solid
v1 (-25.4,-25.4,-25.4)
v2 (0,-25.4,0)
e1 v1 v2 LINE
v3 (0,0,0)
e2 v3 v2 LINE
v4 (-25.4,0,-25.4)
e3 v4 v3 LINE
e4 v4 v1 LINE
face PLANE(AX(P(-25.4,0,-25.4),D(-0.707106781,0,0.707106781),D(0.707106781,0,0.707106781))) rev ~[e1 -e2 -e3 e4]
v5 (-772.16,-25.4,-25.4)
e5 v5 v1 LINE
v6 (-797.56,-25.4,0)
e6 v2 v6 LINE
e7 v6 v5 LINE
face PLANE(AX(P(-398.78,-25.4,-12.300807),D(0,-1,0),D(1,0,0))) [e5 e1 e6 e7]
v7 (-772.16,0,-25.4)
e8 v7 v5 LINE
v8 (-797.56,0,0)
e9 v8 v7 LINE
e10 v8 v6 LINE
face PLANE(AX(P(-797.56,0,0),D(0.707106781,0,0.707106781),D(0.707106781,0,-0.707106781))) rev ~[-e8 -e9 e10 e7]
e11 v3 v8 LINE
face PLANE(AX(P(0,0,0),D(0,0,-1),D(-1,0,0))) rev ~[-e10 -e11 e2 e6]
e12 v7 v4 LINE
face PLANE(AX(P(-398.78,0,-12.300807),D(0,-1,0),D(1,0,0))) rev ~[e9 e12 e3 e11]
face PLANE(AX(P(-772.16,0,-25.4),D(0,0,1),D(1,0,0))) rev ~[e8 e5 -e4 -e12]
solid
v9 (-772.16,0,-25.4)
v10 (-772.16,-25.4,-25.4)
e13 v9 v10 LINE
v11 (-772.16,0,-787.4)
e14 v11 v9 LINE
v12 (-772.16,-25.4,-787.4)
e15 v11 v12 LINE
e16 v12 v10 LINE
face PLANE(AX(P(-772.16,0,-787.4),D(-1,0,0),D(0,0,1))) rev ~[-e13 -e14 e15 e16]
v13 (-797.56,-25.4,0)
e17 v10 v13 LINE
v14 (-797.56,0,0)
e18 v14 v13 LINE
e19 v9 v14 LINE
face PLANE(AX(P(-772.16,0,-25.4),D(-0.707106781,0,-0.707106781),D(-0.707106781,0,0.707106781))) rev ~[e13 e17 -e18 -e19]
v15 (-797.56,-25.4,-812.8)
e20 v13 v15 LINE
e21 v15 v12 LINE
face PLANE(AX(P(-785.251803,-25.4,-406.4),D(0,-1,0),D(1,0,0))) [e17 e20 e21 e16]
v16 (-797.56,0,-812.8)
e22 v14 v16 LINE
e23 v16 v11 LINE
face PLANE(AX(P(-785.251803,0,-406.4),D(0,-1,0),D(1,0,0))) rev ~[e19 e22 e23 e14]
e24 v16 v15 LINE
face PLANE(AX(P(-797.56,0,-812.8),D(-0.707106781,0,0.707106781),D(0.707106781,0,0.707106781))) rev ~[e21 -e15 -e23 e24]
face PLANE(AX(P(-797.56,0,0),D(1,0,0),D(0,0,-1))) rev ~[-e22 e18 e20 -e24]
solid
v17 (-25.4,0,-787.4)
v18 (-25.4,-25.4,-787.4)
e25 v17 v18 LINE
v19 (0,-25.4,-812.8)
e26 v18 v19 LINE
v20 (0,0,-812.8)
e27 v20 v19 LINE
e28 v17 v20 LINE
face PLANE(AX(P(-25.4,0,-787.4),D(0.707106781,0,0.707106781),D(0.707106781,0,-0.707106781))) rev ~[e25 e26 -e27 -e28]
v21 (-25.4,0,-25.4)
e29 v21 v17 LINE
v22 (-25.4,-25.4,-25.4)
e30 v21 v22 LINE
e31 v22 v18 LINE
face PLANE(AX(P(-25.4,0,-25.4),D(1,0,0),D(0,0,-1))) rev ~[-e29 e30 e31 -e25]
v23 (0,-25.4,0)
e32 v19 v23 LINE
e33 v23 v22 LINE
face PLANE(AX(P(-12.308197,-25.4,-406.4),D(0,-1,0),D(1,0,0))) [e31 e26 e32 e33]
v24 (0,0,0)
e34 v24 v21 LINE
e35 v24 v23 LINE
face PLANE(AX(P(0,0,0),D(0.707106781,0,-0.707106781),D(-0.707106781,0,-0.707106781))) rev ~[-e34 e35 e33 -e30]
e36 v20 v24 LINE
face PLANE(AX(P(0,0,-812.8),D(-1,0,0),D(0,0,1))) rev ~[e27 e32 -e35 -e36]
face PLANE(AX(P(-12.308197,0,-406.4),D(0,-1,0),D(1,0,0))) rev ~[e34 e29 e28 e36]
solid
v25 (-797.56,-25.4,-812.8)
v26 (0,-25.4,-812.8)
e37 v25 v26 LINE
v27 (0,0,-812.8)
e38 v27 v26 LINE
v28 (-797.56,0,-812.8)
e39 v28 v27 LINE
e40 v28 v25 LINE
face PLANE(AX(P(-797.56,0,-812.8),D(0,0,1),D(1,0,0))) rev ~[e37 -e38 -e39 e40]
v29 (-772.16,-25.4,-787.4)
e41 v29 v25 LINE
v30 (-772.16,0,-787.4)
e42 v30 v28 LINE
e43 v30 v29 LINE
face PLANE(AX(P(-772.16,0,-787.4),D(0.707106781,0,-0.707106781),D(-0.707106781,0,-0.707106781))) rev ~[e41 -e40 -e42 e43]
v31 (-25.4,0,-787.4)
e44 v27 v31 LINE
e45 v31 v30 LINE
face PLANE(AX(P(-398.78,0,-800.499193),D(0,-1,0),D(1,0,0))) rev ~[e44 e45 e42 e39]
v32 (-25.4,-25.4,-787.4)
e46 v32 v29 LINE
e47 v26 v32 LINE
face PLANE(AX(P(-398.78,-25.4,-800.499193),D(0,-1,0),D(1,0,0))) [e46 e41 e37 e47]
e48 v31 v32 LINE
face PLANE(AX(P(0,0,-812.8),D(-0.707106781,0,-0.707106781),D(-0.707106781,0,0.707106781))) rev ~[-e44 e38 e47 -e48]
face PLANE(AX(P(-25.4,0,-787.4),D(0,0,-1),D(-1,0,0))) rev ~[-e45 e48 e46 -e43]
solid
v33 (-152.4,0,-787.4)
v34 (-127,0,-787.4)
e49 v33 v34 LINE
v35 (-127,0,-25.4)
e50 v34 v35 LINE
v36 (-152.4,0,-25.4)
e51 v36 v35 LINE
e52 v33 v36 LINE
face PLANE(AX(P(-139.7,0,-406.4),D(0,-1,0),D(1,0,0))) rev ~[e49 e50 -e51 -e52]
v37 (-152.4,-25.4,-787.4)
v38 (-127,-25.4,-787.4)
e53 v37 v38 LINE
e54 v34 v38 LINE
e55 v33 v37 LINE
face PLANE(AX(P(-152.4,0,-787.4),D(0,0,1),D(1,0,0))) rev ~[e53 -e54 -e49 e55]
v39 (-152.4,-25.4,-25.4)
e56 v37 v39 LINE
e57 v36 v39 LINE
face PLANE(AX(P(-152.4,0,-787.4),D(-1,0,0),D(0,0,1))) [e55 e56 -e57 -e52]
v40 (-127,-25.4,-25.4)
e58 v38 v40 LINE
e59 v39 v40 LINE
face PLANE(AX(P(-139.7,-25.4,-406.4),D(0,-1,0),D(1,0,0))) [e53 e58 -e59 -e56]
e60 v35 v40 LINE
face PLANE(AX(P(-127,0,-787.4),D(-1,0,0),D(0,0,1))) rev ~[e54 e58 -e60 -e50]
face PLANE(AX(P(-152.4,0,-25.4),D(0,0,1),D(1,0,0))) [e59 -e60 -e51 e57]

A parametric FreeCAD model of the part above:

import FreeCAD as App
import Part
import Sketcher
from FreeCAD import Vector
Q = App.Units.Quantity

doc = App.newDocument("Part")
body = doc.addObject("PartDesign::Body", "Body")

sketch1 = body.newObject("Sketcher::SketchObject", "Sketch")
sketch1.AttachmentSupport = (doc.getObject("XZ_Plane"), [""])
sketch1.MapMode = "FlatFace"
sketch1.addGeometry(Part.LineSegment(Vector(0, -812.8, 0), Vector(0, 0, 0)), False)
sketch1.addGeometry(Part.LineSegment(Vector(0, 0, 0), Vector(-25.4, -25.4, 0)), False)
sketch1.addGeometry(Part.LineSegment(Vector(-25.4, -25.4, 0), Vector(-25.4, -787.4, 0)), False)
sketch1.addGeometry(Part.LineSegment(Vector(-25.4, -787.4, 0), Vector(0, -812.8, 0)), False)
sketch1.addConstraint(Sketcher.Constraint("Coincident", 0, 2, 1, 1))
sketch1.addConstraint(Sketcher.Constraint("Coincident", 1, 2, 2, 1))
sketch1.addConstraint(Sketcher.Constraint("Coincident", 2, 2, 3, 1))
sketch1.addConstraint(Sketcher.Constraint("Coincident", 3, 2, 0, 1))
sketch1.addConstraint(Sketcher.Constraint("Vertical", 0))
sketch1.addConstraint(Sketcher.Constraint("Vertical", 2))
sketch1.addConstraint(Sketcher.Constraint("Coincident", 0, 2, -1, 1))
sketch1.addConstraint(Sketcher.Constraint("Perpendicular", 1, 3))
sketch1.addConstraint(Sketcher.Constraint("Equal", 1, 3))
sketch1.addConstraint(Sketcher.Constraint("DistanceY", 0, 1, 0, 2, Q("32 in")))
sketch1.addConstraint(Sketcher.Constraint("DistanceY", 2, 2, 2, 1, Q("30 in")))
pad1 = body.newObject("PartDesign::Pad", "Pad")
pad1.Profile = sketch1
pad1.Length = Q("1 in")
body2 = doc.addObject("PartDesign::Body", "Body001")

sketch2 = body2.newObject("Sketcher::SketchObject", "Sketch001")
sketch2.AttachmentSupport = (doc.getObject("XZ_Plane001"), [""])
sketch2.MapMode = "FlatFace"
sketch2.addGeometry(Part.LineSegment(Vector(-797.56, -812.8, 0), Vector(0, -812.8, 0)), False)
sketch2.addGeometry(Part.LineSegment(Vector(0, -812.8, 0), Vector(-25.4, -787.4, 0)), False)
sketch2.addGeometry(Part.LineSegment(Vector(-25.4, -787.4, 0), Vector(-772.16, -787.4, 0)), False)
sketch2.addGeometry(Part.LineSegment(Vector(-772.16, -787.4, 0), Vector(-797.56, -812.8, 0)), False)
sketch2.addConstraint(Sketcher.Constraint("Coincident", 0, 2, 1, 1))
sketch2.addConstraint(Sketcher.Constraint("Coincident", 1, 2, 2, 1))
sketch2.addConstraint(Sketcher.Constraint("Coincident", 2, 2, 3, 1))
sketch2.addConstraint(Sketcher.Constraint("Coincident", 3, 2, 0, 1))
sketch2.addConstraint(Sketcher.Constraint("Horizontal", 0))
sketch2.addConstraint(Sketcher.Constraint("Horizontal", 2))
sketch2.addConstraint(Sketcher.Constraint("PointOnObject", 0, 2, -2))
sketch2.addConstraint(Sketcher.Constraint("Perpendicular", 1, 3))
sketch2.addConstraint(Sketcher.Constraint("Equal", 1, 3))
sketch2.addConstraint(Sketcher.Constraint("DistanceX", 0, 1, 0, 2, Q("31.4 in")))
sketch2.addConstraint(Sketcher.Constraint("DistanceX", 2, 2, 2, 1, Q("29.4 in")))
sketch2.addConstraint(Sketcher.Constraint("DistanceY", 0, 2, -1, 1, Q("32 in")))
pad2 = body2.newObject("PartDesign::Pad", "Pad001")
pad2.Profile = sketch2
pad2.Length = Q("1 in")
body3 = doc.addObject("PartDesign::Body", "Body002")

sketch3 = body3.newObject("Sketcher::SketchObject", "Sketch002")
sketch3.AttachmentSupport = (doc.getObject("XZ_Plane002"), [""])
sketch3.MapMode = "FlatFace"
sketch3.addGeometry(Part.LineSegment(Vector(-772.16, -25.4, 0), Vector(-797.56, 0, 0)), False)
sketch3.addGeometry(Part.LineSegment(Vector(-797.56, 0, 0), Vector(-797.56, -812.8, 0)), False)
sketch3.addGeometry(Part.LineSegment(Vector(-797.56, -812.8, 0), Vector(-772.16, -787.4, 0)), False)
sketch3.addGeometry(Part.LineSegment(Vector(-772.16, -787.4, 0), Vector(-772.16, -25.4, 0)), False)
sketch3.addConstraint(Sketcher.Constraint("Coincident", 0, 2, 1, 1))
sketch3.addConstraint(Sketcher.Constraint("Coincident", 1, 2, 2, 1))
sketch3.addConstraint(Sketcher.Constraint("Coincident", 2, 2, 3, 1))
sketch3.addConstraint(Sketcher.Constraint("Coincident", 3, 2, 0, 1))
sketch3.addConstraint(Sketcher.Constraint("Vertical", 1))
sketch3.addConstraint(Sketcher.Constraint("Vertical", 3))
sketch3.addConstraint(Sketcher.Constraint("PointOnObject", 0, 2, -1))
sketch3.addConstraint(Sketcher.Constraint("Perpendicular", 0, 2))
sketch3.addConstraint(Sketcher.Constraint("Equal", 0, 2))
sketch3.addConstraint(Sketcher.Constraint("DistanceY", 1, 2, 1, 1, Q("32 in")))
sketch3.addConstraint(Sketcher.Constraint("DistanceY", 3, 1, 3, 2, Q("30 in")))
sketch3.addConstraint(Sketcher.Constraint("DistanceX", 0, 2, -1, 1, Q("31.4 in")))
pad3 = body3.newObject("PartDesign::Pad", "Pad002")
pad3.Profile = sketch3
pad3.Length = Q("1 in")
body4 = doc.addObject("PartDesign::Body", "Body003")

sketch4 = body4.newObject("Sketcher::SketchObject", "Sketch003")
sketch4.AttachmentSupport = (doc.getObject("XZ_Plane003"), [""])
sketch4.MapMode = "FlatFace"
sketch4.addGeometry(Part.LineSegment(Vector(-25.4, -25.4, 0), Vector(0, 0, 0)), False)
sketch4.addGeometry(Part.LineSegment(Vector(0, 0, 0), Vector(-797.56, 0, 0)), False)
sketch4.addGeometry(Part.LineSegment(Vector(-797.56, 0, 0), Vector(-772.16, -25.4, 0)), False)
sketch4.addGeometry(Part.LineSegment(Vector(-772.16, -25.4, 0), Vector(-25.4, -25.4, 0)), False)
sketch4.addConstraint(Sketcher.Constraint("Coincident", 0, 2, 1, 1))
sketch4.addConstraint(Sketcher.Constraint("Coincident", 1, 2, 2, 1))
sketch4.addConstraint(Sketcher.Constraint("Coincident", 2, 2, 3, 1))
sketch4.addConstraint(Sketcher.Constraint("Coincident", 3, 2, 0, 1))
sketch4.addConstraint(Sketcher.Constraint("Horizontal", 1))
sketch4.addConstraint(Sketcher.Constraint("Horizontal", 3))
sketch4.addConstraint(Sketcher.Constraint("Coincident", 0, 2, -1, 1))
sketch4.addConstraint(Sketcher.Constraint("Perpendicular", 0, 2))
sketch4.addConstraint(Sketcher.Constraint("Equal", 0, 2))
sketch4.addConstraint(Sketcher.Constraint("DistanceX", 1, 2, 1, 1, Q("31.4 in")))
sketch4.addConstraint(Sketcher.Constraint("DistanceX", 3, 1, 3, 2, Q("29.4 in")))
pad4 = body4.newObject("PartDesign::Pad", "Pad003")
pad4.Profile = sketch4
pad4.Length = Q("1 in")
body5 = doc.addObject("PartDesign::Body", "Body004")

sketch5 = body5.newObject("Sketcher::SketchObject", "Sketch004")
sketch5.AttachmentSupport = (doc.getObject("XZ_Plane004"), [""])
sketch5.MapMode = "FlatFace"
sketch5.addGeometry(Part.LineSegment(Vector(-152.4, -25.4, 0), Vector(-152.4, -787.4, 0)), False)
sketch5.addGeometry(Part.LineSegment(Vector(-152.4, -787.4, 0), Vector(-127, -787.4, 0)), False)
sketch5.addGeometry(Part.LineSegment(Vector(-127, -787.4, 0), Vector(-127, -25.4, 0)), False)
sketch5.addGeometry(Part.LineSegment(Vector(-127, -25.4, 0), Vector(-152.4, -25.4, 0)), False)
sketch5.addConstraint(Sketcher.Constraint("Coincident", 0, 2, 1, 1))
sketch5.addConstraint(Sketcher.Constraint("Coincident", 1, 2, 2, 1))
sketch5.addConstraint(Sketcher.Constraint("Coincident", 2, 2, 3, 1))
sketch5.addConstraint(Sketcher.Constraint("Coincident", 3, 2, 0, 1))
sketch5.addConstraint(Sketcher.Constraint("Vertical", 0))
sketch5.addConstraint(Sketcher.Constraint("Horizontal", 1))
sketch5.addConstraint(Sketcher.Constraint("Vertical", 2))
sketch5.addConstraint(Sketcher.Constraint("Horizontal", 3))
sketch5.addConstraint(Sketcher.Constraint("DistanceX", 1, 1, 1, 2, Q("1 in")))
sketch5.addConstraint(Sketcher.Constraint("DistanceY", 0, 2, 0, 1, Q("30 in")))
sketch5.addConstraint(Sketcher.Constraint("DistanceX", 0, 2, -1, 1, Q("6 in")))
sketch5.addConstraint(Sketcher.Constraint("DistanceY", 0, 2, -1, 1, Q("31 in")))
pad5 = body5.newObject("PartDesign::Pad", "Pad004")
pad5.Profile = sketch5
pad5.Length = Q("1 in")

doc.recompute()
